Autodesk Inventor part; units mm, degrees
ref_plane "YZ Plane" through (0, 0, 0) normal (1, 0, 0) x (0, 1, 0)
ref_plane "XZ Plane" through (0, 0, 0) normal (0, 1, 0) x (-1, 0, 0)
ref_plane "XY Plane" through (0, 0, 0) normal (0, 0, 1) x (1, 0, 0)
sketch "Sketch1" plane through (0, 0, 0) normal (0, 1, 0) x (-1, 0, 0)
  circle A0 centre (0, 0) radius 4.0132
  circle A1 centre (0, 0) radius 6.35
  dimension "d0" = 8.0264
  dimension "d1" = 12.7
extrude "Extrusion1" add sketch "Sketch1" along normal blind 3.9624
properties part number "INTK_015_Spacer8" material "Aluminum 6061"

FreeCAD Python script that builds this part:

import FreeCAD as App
import Part
import Sketcher
from FreeCAD import Vector
Q = App.Units.Quantity

doc = App.newDocument("Part")
body = doc.addObject("PartDesign::Body", "Body")

sketch1 = doc.addObject("Sketcher::SketchObject", "Sketch")
body.addObject(sketch1)
sketch1.AttachmentSupport = (doc.XZ_Plane, [""])
sketch1.MapMode = "FlatFace"
sketch1.addGeometry(Part.Circle(Vector(0, 0, 0), Vector(0, 0, 1), 6.35), False)
sketch1.addGeometry(Part.Circle(Vector(0, 0, 0), Vector(0, 0, 1), 4.0132), False)
sketch1.addConstraint(Sketcher.Constraint("Coincident", 0, 3, -1, 1))
sketch1.addConstraint(Sketcher.Constraint("Coincident", 1, 3, -1, 1))
sketch1.addConstraint(Sketcher.Constraint("Diameter", 0, Q("0.5 in")))
sketch1.addConstraint(Sketcher.Constraint("Diameter", 1, Q("0.316 in")))
pad1 = doc.addObject("PartDesign::Pad", "Pad")
body.addObject(pad1)
pad1.Profile = sketch1
pad1.Length = Q("0.156 in")
pad1.Reversed = True

doc.recompute()
